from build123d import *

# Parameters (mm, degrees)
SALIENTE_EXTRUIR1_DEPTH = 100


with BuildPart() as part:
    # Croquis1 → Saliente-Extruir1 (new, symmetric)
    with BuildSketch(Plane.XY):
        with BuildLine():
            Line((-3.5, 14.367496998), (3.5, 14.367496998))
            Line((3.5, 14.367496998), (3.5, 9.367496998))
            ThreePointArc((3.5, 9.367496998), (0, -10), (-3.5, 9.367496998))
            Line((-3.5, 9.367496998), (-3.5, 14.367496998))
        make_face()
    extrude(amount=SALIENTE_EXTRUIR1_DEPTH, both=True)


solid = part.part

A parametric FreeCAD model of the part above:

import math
import FreeCAD as App
import Part
import Sketcher

V = App.Vector
Q = App.Units.Quantity

doc = App.newDocument("Part")
body = doc.addObject("PartDesign::Body", "Body")

# Sketch on XY plane
sketch1 = body.newObject("Sketcher::SketchObject", "Sketch")
sketch1.AttachmentSupport = (doc.getObject("XY_Plane"), [""])
sketch1.MapMode = "FlatFace"
sketch1.addGeometry([
    Part.LineSegment(V(4, 14, 0), V(-4, 14, 0)),
    Part.LineSegment(V(-4, 14, 0), V(-4, 9, 0)),
    Part.ArcOfCircle(Part.Circle(V(0, 0, 0), V(0, 0, 1), 10), math.radians(110), math.radians(430)),
    Part.LineSegment(V(4, 9, 0), V(4, 14, 0)),
], False)
sketch1.addConstraint([
    Sketcher.Constraint("Coincident", 0, 2, 1, 1),
    Sketcher.Constraint("Coincident", 1, 2, 2, 1),
    Sketcher.Constraint("Coincident", 2, 2, 3, 1),
    Sketcher.Constraint("Coincident", 3, 2, 0, 1),
    Sketcher.Constraint("Horizontal", 0),
    Sketcher.Constraint("Vertical", 1),
    Sketcher.Constraint("Vertical", 3),
    Sketcher.Constraint("Coincident", 2, 3, -1, 1),
    Sketcher.Constraint("Horizontal", 1, 2, 2, 2),
    Sketcher.Constraint("Radius", 2, Q("10 mm")),
    Sketcher.Constraint("DistanceX", 0, 2, 0, 1, Q("7 mm")),
    Sketcher.Constraint("DistanceY", 1, 2, 1, 1, Q("5 mm")),
])
pad1 = body.newObject("PartDesign::Pad", "Pad")
pad1.Profile = sketch1
pad1.Length = 200
pad1.Midplane = True

doc.recompute()
